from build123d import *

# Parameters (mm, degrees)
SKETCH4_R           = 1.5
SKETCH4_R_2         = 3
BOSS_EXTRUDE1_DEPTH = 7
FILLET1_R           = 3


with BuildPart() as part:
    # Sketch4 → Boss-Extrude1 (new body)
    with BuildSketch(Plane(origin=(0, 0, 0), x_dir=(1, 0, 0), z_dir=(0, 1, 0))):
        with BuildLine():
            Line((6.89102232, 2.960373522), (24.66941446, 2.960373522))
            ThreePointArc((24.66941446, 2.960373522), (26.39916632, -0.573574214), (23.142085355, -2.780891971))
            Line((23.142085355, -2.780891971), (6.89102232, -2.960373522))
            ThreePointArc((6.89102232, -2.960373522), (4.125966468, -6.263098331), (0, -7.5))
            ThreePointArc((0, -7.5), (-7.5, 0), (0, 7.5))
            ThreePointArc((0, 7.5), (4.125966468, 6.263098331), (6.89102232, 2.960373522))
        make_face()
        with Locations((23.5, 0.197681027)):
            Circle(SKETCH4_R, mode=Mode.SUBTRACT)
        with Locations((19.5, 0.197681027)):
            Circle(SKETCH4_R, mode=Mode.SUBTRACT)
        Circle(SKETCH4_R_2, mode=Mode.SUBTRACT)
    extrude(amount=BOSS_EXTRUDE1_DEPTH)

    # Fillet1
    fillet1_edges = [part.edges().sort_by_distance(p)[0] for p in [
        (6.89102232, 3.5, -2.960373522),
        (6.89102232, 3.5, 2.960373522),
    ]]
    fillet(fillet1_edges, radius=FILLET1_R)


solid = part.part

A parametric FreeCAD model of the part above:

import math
import FreeCAD as App
import Part
import Sketcher

V = App.Vector


def edges_at(feature, points):
    """Names of the edges that pass closest to the given points."""
    edges = feature.Shape.Edges
    near = lambda p: min(range(len(edges)), key=lambda i: edges[i].distToShape(Part.Vertex(*p))[0])
    return sorted({f"Edge{near(p) + 1}" for p in points})

doc = App.newDocument("Part")
params = doc.addObject("Spreadsheet::Sheet", "Params")
for row, (alias, value) in enumerate([
    ("sketch1_diameter", "3 mm"),
    ("sketch1_diameter2", "6 mm"),
    ("sketch1_radius", "7.5 mm"),
    ("pad1_length", "7 mm"),
    ("fillet_radius", "3 mm"),
], start=1):
    params.set(f"A{row}", alias)
    params.set(f"B{row}", "=" + value)
    params.setAlias(f"B{row}", alias)

body = doc.addObject("PartDesign::Body", "Body")

sketch1 = doc.addObject("Sketcher::SketchObject", "Sketch")
body.addObject(sketch1)
sketch1.AttachmentSupport = (doc.XZ_Plane, [""])
sketch1.MapMode = "FlatFace"
sketch1.addGeometry(Part.LineSegment(V(24.669414, -2.960374, 0), V(6.891022, -2.960374, 0)), False)
sketch1.addGeometry(Part.ArcOfCircle(Part.Circle(V(0, 0, 0), V(0, 0, 1), 7.5), math.radians(-90), math.radians(-23.248292)), False)
sketch1.addGeometry(Part.ArcOfCircle(Part.Circle(V(0, 0, 0), V(0, 0, 1), 7.5), math.radians(90), math.radians(270)), False)
sketch1.addGeometry(Part.ArcOfCircle(Part.Circle(V(0, 0, 0), V(0, 0, 1), 7.5), math.radians(23.248292), math.radians(90)), False)
sketch1.addGeometry(Part.LineSegment(V(6.891022, 2.960374, 0), V(23.142085, 2.780892, 0)), False)
sketch1.addGeometry(Part.ArcOfCircle(Part.Circle(V(23.5, -0.197681, 0), V(0, 0, 1), 3), math.radians(-67.057645), math.radians(96.851987)), False)
sketch1.addGeometry(Part.Circle(V(23.5, -0.197681, 0), V(0, 0, 1), 1.5), False)
sketch1.addGeometry(Part.Circle(V(19.5, -0.197681, 0), V(0, 0, 1), 1.5), False)
sketch1.addGeometry(Part.Circle(V(0, 0, 0), V(0, 0, 1), 3), False)
sketch1.addConstraint(Sketcher.Constraint("Coincident", 0, 2, 1, 2))
sketch1.addConstraint(Sketcher.Constraint("Tangent", 1, 1, 2, 2))
sketch1.addConstraint(Sketcher.Constraint("Tangent", 2, 1, 3, 2))
sketch1.addConstraint(Sketcher.Constraint("Coincident", 3, 1, 4, 1))
sketch1.addConstraint(Sketcher.Constraint("Coincident", 4, 2, 5, 2))
sketch1.addConstraint(Sketcher.Constraint("Coincident", 5, 1, 0, 1))
sketch1.addConstraint(Sketcher.Constraint("Horizontal", 0))
sketch1.addConstraint(Sketcher.Constraint("Coincident", 1, 3, -1, 1))
sketch1.addConstraint(Sketcher.Constraint("Coincident", 8, 3, -1, 1))
sketch1.addConstraint(Sketcher.Constraint("Coincident", 6, 3, 5, 3))
sketch1.addConstraint(Sketcher.Constraint("Equal", 1, 2))
sketch1.addConstraint(Sketcher.Constraint("Equal", 2, 3))
sketch1.addConstraint(Sketcher.Constraint("Equal", 6, 7))
sketch1.addConstraint(Sketcher.Constraint("Equal", 5, 8))
sketch1.addConstraint(Sketcher.Constraint("PointOnObject", 1, 1, -2))
sketch1.addConstraint(Sketcher.Constraint("PointOnObject", 2, 1, -2))
sketch1.addConstraint(Sketcher.Constraint("Horizontal", 6, 3, 7, 3))
sketch1.addConstraint(Sketcher.Constraint("Vertical", 0, 2, 3, 1))
sketch1.addConstraint(Sketcher.Constraint("Diameter", 6, 3.0))
sketch1.addConstraint(Sketcher.Constraint("Diameter", 8, 6.0))
sketch1.addConstraint(Sketcher.Constraint("Radius", 1, 7.5))
sketch1.addConstraint(Sketcher.Constraint("DistanceX", 7, 3, 5, 3, 4.0))
sketch1.addConstraint(Sketcher.Constraint("DistanceX", -1, 1, 5, 3, 23.5))
sketch1.addConstraint(Sketcher.Constraint("DistanceX", 0, 2, 0, 1, 17.778392))
sketch1.addConstraint(Sketcher.Constraint("DistanceY", 5, 3, -1, 1, 0.197681))
sketch1.addConstraint(Sketcher.Constraint("DistanceY", -1, 1, 4, 2, 2.780892))
sketch1.setExpression("Constraints[18]", "Params.sketch1_diameter")
sketch1.setExpression("Constraints[19]", "Params.sketch1_diameter2")
sketch1.setExpression("Constraints[20]", "Params.sketch1_radius")
pad1 = doc.addObject("PartDesign::Pad", "Pad")
body.addObject(pad1)
pad1.Profile = sketch1
pad1.setExpression("Length", "Params.pad1_length")
pad1.Reversed = True
doc.recompute()

fillet = doc.addObject("PartDesign::Fillet", "Fillet")
body.addObject(fillet)
fillet.Base = (pad1, edges_at(pad1, [(6.891, 3.5, -2.96), (6.891, 3.5, 2.96)]))
fillet.setExpression("Radius", "Params.fillet_radius")

doc.recompute()
